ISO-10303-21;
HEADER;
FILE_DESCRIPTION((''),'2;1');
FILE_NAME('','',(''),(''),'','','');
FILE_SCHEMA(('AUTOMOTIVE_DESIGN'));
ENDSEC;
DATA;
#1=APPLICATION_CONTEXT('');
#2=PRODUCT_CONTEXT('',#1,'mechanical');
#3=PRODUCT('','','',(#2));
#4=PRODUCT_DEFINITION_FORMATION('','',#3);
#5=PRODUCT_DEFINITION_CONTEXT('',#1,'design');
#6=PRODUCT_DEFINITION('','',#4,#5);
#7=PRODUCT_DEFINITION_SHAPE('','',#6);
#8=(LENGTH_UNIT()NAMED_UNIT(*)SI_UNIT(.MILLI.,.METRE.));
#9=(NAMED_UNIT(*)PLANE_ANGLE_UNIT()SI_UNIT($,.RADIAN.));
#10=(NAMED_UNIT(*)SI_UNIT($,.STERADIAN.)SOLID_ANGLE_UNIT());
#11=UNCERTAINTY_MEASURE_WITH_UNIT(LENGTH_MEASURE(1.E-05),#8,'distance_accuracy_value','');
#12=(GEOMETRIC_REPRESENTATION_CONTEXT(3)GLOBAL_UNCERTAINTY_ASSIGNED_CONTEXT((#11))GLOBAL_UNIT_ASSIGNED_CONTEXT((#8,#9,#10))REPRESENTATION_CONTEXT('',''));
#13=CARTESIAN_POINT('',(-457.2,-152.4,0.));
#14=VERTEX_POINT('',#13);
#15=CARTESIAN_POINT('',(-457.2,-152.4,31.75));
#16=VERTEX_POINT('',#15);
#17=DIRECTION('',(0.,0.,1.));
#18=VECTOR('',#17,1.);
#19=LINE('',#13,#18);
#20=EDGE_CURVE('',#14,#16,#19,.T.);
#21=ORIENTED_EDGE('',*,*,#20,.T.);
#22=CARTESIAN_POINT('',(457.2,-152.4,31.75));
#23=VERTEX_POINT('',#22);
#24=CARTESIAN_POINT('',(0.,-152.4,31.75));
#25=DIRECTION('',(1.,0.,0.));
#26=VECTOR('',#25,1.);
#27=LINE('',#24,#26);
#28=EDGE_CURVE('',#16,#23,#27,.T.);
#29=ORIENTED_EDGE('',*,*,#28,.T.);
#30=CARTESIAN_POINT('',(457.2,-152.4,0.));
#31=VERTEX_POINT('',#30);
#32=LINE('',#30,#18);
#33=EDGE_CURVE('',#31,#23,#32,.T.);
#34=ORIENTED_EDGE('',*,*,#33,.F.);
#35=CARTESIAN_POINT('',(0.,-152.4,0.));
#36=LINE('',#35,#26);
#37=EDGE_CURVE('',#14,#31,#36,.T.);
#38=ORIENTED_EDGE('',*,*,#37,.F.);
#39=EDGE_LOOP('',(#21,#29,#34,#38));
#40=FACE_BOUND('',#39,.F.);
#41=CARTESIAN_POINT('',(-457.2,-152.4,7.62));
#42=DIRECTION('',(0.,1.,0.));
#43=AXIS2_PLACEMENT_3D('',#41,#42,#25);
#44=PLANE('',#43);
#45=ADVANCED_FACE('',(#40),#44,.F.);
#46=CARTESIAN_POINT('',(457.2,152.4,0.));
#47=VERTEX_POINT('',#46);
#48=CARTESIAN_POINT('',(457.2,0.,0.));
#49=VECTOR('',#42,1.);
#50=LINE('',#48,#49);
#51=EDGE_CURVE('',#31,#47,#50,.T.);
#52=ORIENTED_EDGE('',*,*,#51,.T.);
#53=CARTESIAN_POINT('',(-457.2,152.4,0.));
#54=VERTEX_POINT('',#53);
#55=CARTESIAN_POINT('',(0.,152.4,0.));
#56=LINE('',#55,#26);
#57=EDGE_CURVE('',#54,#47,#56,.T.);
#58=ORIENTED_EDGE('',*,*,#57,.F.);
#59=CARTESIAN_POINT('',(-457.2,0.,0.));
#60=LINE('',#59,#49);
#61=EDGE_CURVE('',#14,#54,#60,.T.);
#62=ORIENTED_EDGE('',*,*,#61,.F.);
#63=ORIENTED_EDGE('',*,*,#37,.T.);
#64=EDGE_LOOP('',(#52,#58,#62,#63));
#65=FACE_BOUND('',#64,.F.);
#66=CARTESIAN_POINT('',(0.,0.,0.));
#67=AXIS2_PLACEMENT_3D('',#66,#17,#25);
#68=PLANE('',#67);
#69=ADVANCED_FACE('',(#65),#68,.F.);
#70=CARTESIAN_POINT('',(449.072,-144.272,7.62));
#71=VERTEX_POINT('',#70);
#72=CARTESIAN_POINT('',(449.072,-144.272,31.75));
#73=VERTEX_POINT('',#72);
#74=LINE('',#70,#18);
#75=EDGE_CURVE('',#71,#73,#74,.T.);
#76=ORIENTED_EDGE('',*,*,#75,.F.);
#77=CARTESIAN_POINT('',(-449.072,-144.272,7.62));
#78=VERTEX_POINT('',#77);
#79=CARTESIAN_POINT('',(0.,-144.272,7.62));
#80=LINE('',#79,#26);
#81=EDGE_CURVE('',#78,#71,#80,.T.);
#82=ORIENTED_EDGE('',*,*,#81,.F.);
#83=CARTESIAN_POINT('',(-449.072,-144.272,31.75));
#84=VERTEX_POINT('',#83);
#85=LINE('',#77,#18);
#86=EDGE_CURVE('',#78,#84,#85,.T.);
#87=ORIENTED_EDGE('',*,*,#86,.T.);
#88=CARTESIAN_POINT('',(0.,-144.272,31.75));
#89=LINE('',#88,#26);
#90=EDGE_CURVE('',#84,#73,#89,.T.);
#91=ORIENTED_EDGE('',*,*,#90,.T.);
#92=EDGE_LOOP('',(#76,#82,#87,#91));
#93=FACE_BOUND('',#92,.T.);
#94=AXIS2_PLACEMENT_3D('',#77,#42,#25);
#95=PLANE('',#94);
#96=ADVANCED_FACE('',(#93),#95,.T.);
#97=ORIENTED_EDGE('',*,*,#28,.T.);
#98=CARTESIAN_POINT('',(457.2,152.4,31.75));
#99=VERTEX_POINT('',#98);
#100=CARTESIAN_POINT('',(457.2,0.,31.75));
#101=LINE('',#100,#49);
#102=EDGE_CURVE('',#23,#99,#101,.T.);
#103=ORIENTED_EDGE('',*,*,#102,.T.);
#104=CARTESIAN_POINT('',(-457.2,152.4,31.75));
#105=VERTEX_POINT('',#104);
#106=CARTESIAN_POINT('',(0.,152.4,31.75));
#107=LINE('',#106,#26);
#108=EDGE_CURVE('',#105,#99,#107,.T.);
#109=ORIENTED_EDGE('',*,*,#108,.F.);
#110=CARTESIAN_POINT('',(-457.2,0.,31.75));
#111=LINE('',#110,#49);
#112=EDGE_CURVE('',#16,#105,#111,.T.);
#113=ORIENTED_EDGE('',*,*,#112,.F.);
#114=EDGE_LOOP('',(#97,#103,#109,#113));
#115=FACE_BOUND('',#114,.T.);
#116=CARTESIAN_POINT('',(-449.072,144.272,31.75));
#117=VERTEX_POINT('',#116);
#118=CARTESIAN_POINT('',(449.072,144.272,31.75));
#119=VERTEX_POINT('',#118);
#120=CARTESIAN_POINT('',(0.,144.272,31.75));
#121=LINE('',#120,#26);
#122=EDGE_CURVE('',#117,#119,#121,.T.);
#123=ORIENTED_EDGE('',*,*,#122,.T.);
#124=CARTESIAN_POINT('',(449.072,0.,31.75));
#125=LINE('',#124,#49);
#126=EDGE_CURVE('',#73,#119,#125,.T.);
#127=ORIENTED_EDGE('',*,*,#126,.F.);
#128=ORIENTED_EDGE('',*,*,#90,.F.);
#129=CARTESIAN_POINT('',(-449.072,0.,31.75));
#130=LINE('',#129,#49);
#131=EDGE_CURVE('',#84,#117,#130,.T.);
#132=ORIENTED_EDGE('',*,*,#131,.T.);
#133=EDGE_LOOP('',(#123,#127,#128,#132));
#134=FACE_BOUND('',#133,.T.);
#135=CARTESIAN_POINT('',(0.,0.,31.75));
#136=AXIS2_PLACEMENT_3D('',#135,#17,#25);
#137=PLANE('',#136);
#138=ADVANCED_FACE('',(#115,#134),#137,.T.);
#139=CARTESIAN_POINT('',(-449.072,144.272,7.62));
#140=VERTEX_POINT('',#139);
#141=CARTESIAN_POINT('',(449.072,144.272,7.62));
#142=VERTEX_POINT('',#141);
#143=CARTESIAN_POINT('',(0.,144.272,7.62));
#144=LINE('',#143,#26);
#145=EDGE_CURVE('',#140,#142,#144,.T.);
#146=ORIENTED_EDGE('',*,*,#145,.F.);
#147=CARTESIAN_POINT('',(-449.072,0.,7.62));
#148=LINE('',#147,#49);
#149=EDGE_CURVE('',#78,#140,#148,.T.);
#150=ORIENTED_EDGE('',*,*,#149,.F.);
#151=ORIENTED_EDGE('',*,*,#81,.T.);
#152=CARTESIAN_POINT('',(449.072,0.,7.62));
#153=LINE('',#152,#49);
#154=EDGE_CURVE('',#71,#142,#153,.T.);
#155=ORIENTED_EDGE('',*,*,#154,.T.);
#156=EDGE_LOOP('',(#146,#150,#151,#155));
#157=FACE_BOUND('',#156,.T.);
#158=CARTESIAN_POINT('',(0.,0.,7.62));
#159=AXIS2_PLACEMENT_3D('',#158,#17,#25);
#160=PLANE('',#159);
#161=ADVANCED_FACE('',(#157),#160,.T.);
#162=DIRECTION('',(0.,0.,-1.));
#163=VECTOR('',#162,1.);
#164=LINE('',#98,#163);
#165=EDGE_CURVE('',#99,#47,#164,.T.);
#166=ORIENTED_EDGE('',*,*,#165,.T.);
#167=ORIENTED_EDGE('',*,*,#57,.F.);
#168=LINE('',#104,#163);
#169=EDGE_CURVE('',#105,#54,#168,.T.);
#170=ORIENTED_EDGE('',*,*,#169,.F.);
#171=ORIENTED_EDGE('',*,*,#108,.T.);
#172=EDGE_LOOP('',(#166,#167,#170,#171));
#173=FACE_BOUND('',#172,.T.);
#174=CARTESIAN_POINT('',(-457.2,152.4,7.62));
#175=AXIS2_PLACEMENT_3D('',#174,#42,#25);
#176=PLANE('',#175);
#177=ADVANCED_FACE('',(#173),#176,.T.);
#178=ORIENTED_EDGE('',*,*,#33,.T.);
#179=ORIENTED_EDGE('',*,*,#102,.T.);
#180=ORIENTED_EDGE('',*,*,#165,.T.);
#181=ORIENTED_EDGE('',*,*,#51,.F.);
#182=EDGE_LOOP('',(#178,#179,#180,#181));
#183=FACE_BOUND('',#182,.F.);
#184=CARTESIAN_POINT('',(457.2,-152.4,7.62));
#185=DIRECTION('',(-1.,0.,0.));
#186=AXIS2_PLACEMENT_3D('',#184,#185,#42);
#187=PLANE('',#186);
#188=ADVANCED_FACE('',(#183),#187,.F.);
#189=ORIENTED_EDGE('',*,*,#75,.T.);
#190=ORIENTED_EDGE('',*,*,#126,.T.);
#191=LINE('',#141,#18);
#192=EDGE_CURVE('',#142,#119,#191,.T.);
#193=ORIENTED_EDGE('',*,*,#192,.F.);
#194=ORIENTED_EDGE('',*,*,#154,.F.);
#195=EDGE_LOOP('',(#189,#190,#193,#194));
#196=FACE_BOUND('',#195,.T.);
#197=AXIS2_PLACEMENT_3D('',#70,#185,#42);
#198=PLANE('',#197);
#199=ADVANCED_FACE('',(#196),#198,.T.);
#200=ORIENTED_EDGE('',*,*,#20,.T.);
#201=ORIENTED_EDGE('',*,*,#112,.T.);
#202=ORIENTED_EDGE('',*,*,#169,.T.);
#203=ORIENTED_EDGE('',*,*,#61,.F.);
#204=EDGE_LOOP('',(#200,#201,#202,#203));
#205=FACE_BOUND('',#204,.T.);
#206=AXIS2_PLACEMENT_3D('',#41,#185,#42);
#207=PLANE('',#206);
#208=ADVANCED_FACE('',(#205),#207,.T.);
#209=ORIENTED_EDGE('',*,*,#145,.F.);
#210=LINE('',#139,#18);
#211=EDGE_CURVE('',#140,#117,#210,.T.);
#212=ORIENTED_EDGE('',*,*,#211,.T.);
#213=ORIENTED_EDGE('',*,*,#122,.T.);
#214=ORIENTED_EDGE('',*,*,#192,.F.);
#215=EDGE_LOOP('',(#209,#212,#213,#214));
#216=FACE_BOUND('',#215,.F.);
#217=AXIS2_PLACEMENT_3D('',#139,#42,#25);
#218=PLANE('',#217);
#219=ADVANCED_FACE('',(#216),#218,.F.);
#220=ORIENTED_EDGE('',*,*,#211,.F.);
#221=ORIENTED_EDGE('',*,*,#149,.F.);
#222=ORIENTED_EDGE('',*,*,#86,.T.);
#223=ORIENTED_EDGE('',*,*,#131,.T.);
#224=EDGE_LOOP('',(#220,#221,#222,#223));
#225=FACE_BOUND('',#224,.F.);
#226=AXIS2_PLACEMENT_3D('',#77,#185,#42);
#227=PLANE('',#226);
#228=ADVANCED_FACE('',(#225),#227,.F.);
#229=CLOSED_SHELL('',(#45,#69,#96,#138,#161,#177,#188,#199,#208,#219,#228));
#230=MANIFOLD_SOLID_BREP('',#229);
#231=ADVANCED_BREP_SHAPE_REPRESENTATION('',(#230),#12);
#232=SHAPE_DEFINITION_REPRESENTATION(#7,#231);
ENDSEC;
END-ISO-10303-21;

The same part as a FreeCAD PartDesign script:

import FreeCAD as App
import Part
import Sketcher

V = App.Vector
Q = App.Units.Quantity

doc = App.newDocument("Part")
body = doc.addObject("PartDesign::Body", "Body")

# Sketch on XY plane
sketch1 = body.newObject("Sketcher::SketchObject", "Sketch")
sketch1.AttachmentSupport = (doc.getObject("XY_Plane"), [""])
sketch1.MapMode = "FlatFace"
sketch1.addGeometry([
    Part.LineSegment(V(-457, 152, 0), V(-457, -152, 0)),
    Part.LineSegment(V(-457, -152, 0), V(457, -152, 0)),
    Part.LineSegment(V(457, -152, 0), V(457, 152, 0)),
    Part.LineSegment(V(457, 152, 0), V(-457, 152, 0)),
], False)
sketch1.addConstraint([
    Sketcher.Constraint("Coincident", 0, 2, 1, 1),
    Sketcher.Constraint("Coincident", 1, 2, 2, 1),
    Sketcher.Constraint("Coincident", 2, 2, 3, 1),
    Sketcher.Constraint("Coincident", 3, 2, 0, 1),
    Sketcher.Constraint("Vertical", 0),
    Sketcher.Constraint("Horizontal", 1),
    Sketcher.Constraint("Vertical", 2),
    Sketcher.Constraint("Horizontal", 3),
    Sketcher.Constraint("Symmetric", 0, 2, 2, 2, -1, 1),
    Sketcher.Constraint("DistanceX", 1, 1, 1, 2, Q("36 in")),
    Sketcher.Constraint("DistanceY", 0, 2, 0, 1, Q("12 in")),
])
pad1 = body.newObject("PartDesign::Pad", "Pad")
pad1.Profile = sketch1
pad1.Length = Q("0.3 in")

# Sketch on XY plane
sketch2 = body.newObject("Sketcher::SketchObject", "Sketch001")
sketch2.AttachmentSupport = (doc.getObject("XY_Plane"), [""])
sketch2.MapMode = "FlatFace"
sketch2.AttachmentOffset = App.Placement(V(0, 0, 0.3 * 25.4), App.Rotation())
sketch2.addGeometry([
    Part.LineSegment(V(-457, 152, 0), V(-457, -152, 0)),  # 0
    Part.LineSegment(V(-457, -152, 0), V(457, -152, 0)),  # 1
    Part.LineSegment(V(457, -152, 0), V(457, 152, 0)),  # 2
    Part.LineSegment(V(457, 152, 0), V(-457, 152, 0)),  # 3
    Part.LineSegment(V(449, -144, 0), V(-449, -144, 0)),  # 4
    Part.LineSegment(V(-449, -144, 0), V(-449, 144, 0)),  # 5
    Part.LineSegment(V(-449, 144, 0), V(449, 144, 0)),  # 6
    Part.LineSegment(V(449, 144, 0), V(449, -144, 0)),  # 7
], False)
sketch2.addConstraint([
    Sketcher.Constraint("Coincident", 0, 2, 1, 1),
    Sketcher.Constraint("Coincident", 1, 2, 2, 1),
    Sketcher.Constraint("Coincident", 2, 2, 3, 1),
    Sketcher.Constraint("Coincident", 3, 2, 0, 1),
    Sketcher.Constraint("Coincident", 4, 2, 5, 1),
    Sketcher.Constraint("Coincident", 5, 2, 6, 1),
    Sketcher.Constraint("Coincident", 6, 2, 7, 1),
    Sketcher.Constraint("Coincident", 7, 2, 4, 1),
    Sketcher.Constraint("Vertical", 0),
    Sketcher.Constraint("Horizontal", 1),
    Sketcher.Constraint("Vertical", 2),
    Sketcher.Constraint("Horizontal", 3),
    Sketcher.Constraint("Horizontal", 4),
    Sketcher.Constraint("Vertical", 5),
    Sketcher.Constraint("Horizontal", 6),
    Sketcher.Constraint("Vertical", 7),
    Sketcher.Constraint("Symmetric", 0, 2, 2, 2, -1, 1),
    Sketcher.Constraint("Symmetric", 4, 2, 6, 2, -1, 1),
    Sketcher.Constraint("DistanceX", 1, 1, 1, 2, Q("36 in")),
    Sketcher.Constraint("DistanceY", 0, 2, 0, 1, Q("12 in")),
    Sketcher.Constraint("DistanceX", 4, 2, 4, 1, Q("35.36 in")),
    Sketcher.Constraint("DistanceY", 5, 1, 5, 2, Q("11.36 in")),
])
pad2 = body.newObject("PartDesign::Pad", "Pad001")
pad2.Profile = sketch2
pad2.Length = Q("0.95 in")

doc.recompute()
